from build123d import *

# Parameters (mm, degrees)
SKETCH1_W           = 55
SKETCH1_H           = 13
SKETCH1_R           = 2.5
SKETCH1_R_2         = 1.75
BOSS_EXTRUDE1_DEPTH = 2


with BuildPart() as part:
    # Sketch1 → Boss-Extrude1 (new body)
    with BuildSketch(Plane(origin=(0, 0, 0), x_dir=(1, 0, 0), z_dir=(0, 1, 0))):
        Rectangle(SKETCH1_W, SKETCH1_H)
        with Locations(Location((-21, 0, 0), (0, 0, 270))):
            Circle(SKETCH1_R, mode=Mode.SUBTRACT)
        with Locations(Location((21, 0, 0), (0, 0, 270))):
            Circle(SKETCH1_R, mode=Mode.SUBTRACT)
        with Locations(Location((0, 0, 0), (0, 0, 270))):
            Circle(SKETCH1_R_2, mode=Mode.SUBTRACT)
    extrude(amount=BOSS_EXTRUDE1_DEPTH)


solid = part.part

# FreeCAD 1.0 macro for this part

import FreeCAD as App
import Part
import Sketcher
from FreeCAD import Vector
Q = App.Units.Quantity

doc = App.newDocument("Part")
body = doc.addObject("PartDesign::Body", "Body")

# Sketch on XZ plane
sketch1 = body.newObject("Sketcher::SketchObject", "Sketch")
sketch1.AttachmentSupport = (doc.getObject("XZ_Plane"), [""])
sketch1.MapMode = "FlatFace"
sketch1.addGeometry(Part.LineSegment(Vector(-27.5, -6.5, 0), Vector(-27.5, 6.5, 0)), False)
sketch1.addGeometry(Part.LineSegment(Vector(-27.5, 6.5, 0), Vector(27.5, 6.5, 0)), False)
sketch1.addGeometry(Part.LineSegment(Vector(27.5, 6.5, 0), Vector(27.5, -6.5, 0)), False)
sketch1.addGeometry(Part.LineSegment(Vector(27.5, -6.5, 0), Vector(-27.5, -6.5, 0)), False)
sketch1.addGeometry(Part.Circle(Vector(-21, 0, 0), Vector(0, 0, 1), 2.5), False)
sketch1.addGeometry(Part.Circle(Vector(0, 0, 0), Vector(0, 0, 1), 1.8), False)
sketch1.addGeometry(Part.Circle(Vector(21, 0, 0), Vector(0, 0, 1), 2.5), False)
sketch1.addConstraint(Sketcher.Constraint("Coincident", 0, 2, 1, 1))
sketch1.addConstraint(Sketcher.Constraint("Coincident", 1, 2, 2, 1))
sketch1.addConstraint(Sketcher.Constraint("Coincident", 2, 2, 3, 1))
sketch1.addConstraint(Sketcher.Constraint("Coincident", 3, 2, 0, 1))
sketch1.addConstraint(Sketcher.Constraint("Vertical", 0))
sketch1.addConstraint(Sketcher.Constraint("Horizontal", 1))
sketch1.addConstraint(Sketcher.Constraint("Vertical", 2))
sketch1.addConstraint(Sketcher.Constraint("Horizontal", 3))
sketch1.addConstraint(Sketcher.Constraint("Coincident", 5, 3, -1, 1))
sketch1.addConstraint(Sketcher.Constraint("Equal", 4, 6))
sketch1.addConstraint(Sketcher.Constraint("Symmetric", 4, 3, 6, 3, -1, 1))
sketch1.addConstraint(Sketcher.Constraint("Symmetric", 0, 2, 2, 2, -1, 1))
sketch1.addConstraint(Sketcher.Constraint("PointOnObject", 4, 3, -1))
sketch1.addConstraint(Sketcher.Constraint("Diameter", 4, Q("5 mm")))
sketch1.addConstraint(Sketcher.Constraint("Diameter", 5, Q("3.5 mm")))
sketch1.addConstraint(Sketcher.Constraint("DistanceX", 1, 1, 1, 2, Q("55 mm")))
sketch1.addConstraint(Sketcher.Constraint("DistanceY", 0, 1, 0, 2, Q("13 mm")))
sketch1.addConstraint(Sketcher.Constraint("DistanceX", 4, 3, -1, 1, Q("21 mm")))
pad1 = body.newObject("PartDesign::Pad", "Pad")
pad1.Profile = sketch1
pad1.Length = 2
pad1.Reversed = True

doc.recompute()
